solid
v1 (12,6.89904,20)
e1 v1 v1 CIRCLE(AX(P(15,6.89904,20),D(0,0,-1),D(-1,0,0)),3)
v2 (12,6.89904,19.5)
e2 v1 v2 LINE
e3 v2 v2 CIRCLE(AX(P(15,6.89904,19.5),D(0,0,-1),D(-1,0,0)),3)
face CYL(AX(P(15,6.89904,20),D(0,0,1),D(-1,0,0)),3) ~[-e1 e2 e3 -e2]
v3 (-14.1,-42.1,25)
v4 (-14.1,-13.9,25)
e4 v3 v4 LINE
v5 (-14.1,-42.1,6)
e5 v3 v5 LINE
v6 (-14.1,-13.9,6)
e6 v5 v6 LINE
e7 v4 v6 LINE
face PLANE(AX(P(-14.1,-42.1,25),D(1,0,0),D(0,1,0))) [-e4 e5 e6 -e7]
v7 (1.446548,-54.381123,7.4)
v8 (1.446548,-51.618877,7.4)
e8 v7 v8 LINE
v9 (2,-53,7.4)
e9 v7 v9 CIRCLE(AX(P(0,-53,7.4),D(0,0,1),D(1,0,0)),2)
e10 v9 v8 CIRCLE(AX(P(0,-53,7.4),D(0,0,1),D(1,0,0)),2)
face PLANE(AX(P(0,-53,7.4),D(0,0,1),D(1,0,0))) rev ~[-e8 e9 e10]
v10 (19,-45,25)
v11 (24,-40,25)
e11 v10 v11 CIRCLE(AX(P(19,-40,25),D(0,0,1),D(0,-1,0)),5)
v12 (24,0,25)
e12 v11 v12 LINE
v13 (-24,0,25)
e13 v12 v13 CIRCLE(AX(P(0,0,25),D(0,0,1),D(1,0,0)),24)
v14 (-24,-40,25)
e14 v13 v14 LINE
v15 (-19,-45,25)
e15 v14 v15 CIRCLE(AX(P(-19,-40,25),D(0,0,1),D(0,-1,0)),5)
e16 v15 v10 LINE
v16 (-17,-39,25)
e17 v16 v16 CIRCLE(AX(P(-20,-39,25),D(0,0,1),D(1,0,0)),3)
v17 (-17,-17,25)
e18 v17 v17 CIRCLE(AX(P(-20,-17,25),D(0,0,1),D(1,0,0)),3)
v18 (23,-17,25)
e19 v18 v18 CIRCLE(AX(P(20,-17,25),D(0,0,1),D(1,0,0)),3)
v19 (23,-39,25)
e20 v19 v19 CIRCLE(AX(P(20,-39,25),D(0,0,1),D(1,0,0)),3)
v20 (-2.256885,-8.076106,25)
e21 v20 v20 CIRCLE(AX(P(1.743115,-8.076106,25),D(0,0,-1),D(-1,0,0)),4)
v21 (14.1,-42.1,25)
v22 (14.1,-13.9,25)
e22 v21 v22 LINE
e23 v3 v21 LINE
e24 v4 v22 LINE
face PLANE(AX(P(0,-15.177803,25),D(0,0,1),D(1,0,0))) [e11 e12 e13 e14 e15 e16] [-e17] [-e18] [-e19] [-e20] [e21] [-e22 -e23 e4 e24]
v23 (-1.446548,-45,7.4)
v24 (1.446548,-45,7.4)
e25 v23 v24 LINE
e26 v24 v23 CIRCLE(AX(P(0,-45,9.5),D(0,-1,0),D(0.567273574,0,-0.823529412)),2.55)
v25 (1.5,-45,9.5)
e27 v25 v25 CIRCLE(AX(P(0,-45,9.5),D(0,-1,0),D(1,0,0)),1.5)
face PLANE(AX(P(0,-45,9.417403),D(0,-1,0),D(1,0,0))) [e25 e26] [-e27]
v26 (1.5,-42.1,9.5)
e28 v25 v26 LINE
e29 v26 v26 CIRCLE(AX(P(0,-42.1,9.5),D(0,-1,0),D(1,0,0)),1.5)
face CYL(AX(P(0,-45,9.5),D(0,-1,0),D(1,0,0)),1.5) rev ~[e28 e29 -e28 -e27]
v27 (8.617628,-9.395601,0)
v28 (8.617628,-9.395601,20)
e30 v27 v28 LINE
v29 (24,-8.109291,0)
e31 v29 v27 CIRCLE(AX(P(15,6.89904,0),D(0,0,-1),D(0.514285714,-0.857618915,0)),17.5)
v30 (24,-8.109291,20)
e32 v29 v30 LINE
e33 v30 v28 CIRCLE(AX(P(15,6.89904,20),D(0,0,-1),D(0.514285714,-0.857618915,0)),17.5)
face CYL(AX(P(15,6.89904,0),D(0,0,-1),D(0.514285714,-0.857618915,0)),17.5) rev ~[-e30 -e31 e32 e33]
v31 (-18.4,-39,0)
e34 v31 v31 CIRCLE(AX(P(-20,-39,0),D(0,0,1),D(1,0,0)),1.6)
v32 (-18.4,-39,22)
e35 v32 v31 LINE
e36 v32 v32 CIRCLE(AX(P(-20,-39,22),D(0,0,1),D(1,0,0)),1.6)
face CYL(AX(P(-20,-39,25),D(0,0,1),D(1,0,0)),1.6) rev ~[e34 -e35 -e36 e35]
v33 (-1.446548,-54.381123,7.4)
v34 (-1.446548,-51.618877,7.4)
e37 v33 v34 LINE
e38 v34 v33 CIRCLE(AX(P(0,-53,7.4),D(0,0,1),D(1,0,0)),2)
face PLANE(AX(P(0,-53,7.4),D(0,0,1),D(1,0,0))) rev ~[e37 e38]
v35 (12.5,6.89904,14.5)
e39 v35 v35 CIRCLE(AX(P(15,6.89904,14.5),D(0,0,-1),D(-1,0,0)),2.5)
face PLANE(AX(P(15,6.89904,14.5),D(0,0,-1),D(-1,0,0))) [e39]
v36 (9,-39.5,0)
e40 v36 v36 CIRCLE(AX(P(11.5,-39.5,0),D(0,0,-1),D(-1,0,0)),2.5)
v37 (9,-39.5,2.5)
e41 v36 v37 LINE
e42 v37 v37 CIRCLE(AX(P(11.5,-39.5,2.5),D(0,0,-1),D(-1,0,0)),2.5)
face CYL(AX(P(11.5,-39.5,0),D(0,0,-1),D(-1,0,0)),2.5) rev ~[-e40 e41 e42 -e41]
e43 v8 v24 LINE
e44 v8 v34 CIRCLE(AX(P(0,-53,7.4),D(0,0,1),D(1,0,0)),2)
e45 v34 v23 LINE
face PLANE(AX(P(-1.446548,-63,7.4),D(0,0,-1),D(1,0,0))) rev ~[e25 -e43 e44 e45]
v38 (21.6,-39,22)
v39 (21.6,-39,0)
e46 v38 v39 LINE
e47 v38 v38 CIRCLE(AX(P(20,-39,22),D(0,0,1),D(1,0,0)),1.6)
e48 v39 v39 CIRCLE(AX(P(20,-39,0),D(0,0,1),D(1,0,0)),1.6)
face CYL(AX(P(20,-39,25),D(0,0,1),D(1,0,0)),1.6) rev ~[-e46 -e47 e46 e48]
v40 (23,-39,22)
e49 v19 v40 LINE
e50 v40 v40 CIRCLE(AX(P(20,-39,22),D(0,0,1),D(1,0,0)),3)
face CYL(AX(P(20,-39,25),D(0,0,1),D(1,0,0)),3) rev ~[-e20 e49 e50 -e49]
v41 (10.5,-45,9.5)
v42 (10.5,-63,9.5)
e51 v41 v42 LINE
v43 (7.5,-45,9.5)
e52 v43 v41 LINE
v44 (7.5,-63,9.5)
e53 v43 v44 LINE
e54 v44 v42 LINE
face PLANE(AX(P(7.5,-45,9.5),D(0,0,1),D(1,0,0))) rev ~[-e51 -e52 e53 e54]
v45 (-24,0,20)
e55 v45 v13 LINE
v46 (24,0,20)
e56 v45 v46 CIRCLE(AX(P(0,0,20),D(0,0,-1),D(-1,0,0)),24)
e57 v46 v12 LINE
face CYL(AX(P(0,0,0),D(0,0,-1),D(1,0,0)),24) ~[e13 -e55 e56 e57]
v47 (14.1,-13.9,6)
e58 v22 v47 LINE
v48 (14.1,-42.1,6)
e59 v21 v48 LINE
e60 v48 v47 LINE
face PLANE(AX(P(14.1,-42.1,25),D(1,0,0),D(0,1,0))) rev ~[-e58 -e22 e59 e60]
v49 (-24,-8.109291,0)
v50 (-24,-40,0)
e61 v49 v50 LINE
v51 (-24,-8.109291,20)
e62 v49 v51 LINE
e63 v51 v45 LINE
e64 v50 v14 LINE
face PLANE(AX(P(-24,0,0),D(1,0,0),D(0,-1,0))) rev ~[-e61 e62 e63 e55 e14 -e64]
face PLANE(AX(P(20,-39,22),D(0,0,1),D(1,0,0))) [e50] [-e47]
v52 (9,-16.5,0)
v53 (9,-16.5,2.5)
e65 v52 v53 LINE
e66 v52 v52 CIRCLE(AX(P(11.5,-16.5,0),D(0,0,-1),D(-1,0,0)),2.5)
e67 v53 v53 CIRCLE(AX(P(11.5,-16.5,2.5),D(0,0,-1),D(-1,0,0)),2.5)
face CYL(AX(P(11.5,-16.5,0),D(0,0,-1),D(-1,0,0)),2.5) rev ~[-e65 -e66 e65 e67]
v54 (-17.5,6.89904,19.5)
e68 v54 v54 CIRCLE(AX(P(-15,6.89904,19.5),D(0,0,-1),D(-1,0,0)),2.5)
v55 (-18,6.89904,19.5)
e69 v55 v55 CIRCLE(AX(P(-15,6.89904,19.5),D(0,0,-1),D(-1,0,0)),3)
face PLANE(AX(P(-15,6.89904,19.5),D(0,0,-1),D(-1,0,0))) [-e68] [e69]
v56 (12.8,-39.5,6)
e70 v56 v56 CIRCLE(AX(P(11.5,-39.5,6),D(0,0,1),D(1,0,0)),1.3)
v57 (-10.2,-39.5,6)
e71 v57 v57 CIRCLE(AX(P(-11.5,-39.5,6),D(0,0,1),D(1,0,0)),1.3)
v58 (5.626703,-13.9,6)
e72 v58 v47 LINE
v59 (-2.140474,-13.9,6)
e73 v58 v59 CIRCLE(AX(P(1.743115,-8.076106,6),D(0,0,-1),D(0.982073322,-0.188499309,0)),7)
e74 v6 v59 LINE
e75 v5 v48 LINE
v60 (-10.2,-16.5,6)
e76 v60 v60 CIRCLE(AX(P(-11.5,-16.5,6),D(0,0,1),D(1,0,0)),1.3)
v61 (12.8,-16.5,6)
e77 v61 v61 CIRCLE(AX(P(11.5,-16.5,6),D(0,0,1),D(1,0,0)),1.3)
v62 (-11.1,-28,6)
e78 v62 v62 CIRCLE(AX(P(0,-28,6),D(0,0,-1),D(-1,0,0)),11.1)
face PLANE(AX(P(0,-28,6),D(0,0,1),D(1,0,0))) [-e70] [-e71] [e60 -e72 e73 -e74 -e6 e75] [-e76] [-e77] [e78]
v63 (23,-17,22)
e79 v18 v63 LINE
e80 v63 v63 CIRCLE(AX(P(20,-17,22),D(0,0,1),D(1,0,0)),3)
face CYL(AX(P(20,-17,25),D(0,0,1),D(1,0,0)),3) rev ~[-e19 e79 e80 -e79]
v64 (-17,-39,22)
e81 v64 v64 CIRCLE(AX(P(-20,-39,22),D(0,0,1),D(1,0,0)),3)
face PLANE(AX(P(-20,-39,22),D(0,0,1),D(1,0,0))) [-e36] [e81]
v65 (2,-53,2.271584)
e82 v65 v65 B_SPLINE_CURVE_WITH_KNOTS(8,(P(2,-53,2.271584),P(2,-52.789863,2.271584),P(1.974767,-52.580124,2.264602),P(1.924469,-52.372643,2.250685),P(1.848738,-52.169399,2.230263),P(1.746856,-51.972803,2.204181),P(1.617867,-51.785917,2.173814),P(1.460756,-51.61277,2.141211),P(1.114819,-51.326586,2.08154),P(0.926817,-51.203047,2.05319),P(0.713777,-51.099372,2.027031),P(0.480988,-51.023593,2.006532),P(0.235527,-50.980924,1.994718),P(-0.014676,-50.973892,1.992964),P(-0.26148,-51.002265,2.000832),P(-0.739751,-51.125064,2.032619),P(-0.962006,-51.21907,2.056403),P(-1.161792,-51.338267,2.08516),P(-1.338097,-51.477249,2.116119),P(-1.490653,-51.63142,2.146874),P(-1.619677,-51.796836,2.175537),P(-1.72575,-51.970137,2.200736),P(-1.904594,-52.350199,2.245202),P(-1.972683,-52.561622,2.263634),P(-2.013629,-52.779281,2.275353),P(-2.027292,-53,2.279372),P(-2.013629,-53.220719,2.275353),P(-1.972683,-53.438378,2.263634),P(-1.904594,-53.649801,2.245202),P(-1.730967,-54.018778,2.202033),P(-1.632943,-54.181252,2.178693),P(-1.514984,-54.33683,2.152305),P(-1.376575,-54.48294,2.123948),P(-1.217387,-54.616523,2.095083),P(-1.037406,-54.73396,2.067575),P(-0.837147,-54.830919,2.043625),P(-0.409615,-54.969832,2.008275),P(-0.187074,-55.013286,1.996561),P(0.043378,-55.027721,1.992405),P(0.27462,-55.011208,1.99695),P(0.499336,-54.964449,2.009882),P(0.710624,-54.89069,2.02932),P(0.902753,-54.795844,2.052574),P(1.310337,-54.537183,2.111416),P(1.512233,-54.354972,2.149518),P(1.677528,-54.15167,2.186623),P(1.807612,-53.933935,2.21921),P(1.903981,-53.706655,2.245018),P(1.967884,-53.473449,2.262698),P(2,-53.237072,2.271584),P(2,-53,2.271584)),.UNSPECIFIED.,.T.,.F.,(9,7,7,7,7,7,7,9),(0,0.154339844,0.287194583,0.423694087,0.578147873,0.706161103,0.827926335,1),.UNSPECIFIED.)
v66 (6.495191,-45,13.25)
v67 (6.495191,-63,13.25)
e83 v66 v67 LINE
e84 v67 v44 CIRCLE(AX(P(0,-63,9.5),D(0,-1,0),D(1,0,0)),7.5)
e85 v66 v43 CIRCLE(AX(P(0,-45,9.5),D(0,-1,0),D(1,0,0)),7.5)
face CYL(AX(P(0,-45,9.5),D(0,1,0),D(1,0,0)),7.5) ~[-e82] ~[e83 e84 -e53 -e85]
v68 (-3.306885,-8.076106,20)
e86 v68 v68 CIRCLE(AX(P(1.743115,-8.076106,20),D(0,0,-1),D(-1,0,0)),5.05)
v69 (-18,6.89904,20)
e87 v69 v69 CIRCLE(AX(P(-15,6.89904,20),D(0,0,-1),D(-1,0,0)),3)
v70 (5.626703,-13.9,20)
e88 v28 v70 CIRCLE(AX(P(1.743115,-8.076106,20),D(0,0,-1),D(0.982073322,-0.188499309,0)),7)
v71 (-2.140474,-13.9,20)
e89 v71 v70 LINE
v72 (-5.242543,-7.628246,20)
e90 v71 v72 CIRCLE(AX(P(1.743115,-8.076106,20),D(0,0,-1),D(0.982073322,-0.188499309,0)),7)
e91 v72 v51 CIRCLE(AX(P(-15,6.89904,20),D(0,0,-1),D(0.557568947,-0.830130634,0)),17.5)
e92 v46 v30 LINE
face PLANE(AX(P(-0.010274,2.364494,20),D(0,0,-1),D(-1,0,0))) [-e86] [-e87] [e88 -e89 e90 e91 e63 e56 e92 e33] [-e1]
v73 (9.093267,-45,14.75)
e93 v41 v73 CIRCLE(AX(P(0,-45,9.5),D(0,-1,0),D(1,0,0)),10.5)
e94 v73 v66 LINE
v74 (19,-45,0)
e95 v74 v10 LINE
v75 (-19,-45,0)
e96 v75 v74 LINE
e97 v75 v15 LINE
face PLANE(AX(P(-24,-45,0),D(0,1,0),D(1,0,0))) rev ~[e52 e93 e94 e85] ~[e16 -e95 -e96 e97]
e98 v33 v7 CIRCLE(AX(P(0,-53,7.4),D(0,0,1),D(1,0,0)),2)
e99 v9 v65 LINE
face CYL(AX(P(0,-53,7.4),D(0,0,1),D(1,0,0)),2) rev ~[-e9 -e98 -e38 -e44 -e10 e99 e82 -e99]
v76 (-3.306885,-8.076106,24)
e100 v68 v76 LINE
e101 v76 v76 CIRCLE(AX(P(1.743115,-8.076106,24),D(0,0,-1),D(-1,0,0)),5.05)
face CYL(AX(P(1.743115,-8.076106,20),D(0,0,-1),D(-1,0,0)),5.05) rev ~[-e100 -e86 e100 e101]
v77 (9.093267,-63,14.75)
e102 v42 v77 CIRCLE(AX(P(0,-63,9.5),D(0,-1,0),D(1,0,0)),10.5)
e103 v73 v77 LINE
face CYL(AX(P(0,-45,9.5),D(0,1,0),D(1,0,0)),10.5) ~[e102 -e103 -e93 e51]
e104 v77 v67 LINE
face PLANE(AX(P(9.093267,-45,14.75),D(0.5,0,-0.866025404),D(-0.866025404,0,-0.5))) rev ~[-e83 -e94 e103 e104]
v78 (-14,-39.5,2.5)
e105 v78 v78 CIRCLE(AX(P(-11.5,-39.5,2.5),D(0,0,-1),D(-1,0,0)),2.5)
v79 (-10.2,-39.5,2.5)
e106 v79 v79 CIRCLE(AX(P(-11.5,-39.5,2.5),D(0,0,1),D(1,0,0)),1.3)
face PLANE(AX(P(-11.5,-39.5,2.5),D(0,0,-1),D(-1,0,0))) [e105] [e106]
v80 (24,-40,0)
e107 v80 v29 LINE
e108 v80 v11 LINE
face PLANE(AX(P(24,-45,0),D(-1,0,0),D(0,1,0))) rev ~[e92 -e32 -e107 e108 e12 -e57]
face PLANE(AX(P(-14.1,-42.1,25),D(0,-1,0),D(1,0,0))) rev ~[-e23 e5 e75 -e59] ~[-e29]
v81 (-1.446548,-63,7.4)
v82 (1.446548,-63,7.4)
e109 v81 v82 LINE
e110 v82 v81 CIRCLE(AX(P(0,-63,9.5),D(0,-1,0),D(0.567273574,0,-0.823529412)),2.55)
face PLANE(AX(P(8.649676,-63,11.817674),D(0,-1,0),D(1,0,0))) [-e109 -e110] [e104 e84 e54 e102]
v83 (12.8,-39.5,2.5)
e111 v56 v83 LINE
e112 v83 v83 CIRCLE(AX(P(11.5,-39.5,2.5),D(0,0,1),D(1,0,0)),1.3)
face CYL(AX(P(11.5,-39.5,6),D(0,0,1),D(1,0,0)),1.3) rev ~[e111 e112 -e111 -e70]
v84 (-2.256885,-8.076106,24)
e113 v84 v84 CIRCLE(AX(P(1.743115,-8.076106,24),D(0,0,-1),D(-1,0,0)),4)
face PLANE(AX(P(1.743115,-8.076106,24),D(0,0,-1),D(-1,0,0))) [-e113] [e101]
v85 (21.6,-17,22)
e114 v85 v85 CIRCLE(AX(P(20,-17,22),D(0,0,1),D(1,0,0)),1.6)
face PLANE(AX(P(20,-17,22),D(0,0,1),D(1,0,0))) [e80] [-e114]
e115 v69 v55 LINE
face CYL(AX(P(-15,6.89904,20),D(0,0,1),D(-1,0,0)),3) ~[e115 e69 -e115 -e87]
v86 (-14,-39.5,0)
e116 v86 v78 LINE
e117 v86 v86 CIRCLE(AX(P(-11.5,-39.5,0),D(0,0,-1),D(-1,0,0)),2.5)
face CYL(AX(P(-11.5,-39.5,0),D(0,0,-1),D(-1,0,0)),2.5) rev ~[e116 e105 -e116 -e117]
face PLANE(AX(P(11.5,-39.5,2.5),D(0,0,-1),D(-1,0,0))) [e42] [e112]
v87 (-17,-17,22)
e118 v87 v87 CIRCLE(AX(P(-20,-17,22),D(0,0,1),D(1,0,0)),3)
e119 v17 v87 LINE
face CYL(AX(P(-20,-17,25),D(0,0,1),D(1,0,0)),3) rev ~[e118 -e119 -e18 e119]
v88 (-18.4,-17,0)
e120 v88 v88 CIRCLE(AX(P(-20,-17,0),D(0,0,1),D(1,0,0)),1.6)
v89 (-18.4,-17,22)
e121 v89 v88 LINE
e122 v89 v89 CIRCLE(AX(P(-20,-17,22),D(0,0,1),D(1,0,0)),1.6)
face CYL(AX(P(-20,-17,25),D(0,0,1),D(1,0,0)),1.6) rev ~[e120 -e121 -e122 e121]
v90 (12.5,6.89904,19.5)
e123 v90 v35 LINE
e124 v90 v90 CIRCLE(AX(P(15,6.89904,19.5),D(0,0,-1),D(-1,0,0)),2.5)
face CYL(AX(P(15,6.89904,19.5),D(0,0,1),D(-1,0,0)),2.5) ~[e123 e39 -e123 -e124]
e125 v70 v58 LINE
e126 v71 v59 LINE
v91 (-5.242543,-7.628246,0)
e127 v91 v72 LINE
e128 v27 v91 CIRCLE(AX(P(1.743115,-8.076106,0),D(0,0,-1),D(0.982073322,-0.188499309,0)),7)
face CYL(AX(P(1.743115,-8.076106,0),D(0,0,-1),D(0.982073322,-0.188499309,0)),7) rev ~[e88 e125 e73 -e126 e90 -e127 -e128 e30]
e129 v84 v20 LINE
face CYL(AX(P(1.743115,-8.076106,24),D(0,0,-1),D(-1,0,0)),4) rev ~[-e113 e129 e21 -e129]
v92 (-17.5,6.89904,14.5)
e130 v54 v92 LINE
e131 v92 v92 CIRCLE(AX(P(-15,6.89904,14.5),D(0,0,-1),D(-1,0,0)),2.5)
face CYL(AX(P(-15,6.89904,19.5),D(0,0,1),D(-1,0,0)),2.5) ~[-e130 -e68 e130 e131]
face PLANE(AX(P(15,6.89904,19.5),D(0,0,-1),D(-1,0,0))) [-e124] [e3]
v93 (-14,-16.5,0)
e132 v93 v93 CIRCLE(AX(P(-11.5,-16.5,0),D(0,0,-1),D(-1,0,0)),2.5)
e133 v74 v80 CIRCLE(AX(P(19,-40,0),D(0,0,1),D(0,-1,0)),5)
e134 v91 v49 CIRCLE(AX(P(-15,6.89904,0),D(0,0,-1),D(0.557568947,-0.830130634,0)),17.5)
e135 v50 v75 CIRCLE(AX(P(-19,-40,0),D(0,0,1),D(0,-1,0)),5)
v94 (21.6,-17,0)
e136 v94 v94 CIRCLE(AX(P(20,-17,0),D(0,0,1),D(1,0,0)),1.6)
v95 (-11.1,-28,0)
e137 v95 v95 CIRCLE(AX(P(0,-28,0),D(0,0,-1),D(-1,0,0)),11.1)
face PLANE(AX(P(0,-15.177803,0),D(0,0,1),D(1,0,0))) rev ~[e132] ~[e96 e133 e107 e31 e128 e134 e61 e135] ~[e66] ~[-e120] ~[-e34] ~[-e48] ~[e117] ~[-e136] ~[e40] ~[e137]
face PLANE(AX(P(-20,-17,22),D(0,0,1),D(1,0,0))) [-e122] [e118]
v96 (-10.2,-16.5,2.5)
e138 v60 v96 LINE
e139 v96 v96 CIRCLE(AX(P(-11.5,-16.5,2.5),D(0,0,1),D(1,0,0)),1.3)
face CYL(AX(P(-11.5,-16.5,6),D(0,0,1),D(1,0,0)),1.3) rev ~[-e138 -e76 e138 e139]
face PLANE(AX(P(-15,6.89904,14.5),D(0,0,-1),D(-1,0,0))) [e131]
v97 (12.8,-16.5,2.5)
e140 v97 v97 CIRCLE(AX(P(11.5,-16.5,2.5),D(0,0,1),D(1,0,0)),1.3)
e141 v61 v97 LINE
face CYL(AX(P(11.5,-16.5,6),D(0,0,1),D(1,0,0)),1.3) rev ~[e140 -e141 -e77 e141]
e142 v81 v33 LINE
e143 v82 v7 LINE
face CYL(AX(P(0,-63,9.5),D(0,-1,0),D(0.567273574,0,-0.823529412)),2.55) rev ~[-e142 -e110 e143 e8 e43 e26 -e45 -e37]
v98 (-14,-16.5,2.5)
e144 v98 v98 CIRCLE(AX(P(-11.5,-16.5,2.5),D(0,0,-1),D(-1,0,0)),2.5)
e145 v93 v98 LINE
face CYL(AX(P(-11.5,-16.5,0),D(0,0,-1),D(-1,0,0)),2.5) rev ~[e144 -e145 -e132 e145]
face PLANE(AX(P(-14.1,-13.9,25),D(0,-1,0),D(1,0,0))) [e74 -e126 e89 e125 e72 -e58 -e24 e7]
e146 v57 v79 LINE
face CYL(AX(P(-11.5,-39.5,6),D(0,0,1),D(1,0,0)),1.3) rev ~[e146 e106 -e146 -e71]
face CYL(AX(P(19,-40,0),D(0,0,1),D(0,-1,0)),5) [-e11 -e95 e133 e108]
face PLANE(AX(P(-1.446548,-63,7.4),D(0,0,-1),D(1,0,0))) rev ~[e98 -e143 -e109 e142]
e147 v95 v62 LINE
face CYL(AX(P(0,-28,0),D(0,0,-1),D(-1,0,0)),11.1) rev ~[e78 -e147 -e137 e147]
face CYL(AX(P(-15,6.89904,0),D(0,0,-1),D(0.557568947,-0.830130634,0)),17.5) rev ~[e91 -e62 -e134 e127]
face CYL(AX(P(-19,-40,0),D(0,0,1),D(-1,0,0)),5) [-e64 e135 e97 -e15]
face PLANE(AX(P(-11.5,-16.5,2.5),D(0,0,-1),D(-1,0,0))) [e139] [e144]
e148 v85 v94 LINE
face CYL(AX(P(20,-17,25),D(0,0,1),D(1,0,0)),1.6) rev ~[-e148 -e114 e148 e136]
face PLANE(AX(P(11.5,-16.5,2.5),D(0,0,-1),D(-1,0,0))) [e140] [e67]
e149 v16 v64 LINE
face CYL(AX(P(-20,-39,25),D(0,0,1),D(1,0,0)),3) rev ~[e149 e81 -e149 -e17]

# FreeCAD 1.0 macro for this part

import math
import FreeCAD as App
import Part
import Sketcher

V = App.Vector
Q = App.Units.Quantity


def edges_at(feature, points):
    """Names of the edges that pass closest to the given points."""
    edges = feature.Shape.Edges
    near = lambda p: min(range(len(edges)), key=lambda i: edges[i].distToShape(Part.Vertex(*p))[0])
    return sorted({f"Edge{near(p) + 1}" for p in points})

doc = App.newDocument("Part")
params = doc.addObject("Spreadsheet::Sheet", "Params")
for row, (alias, value) in enumerate([
    ("sketch1_radius", "24 mm"),
    ("sketch1_height", "45 mm"),
    ("pad1_length", "25 mm"),
    ("sketch2_width", "28.2 mm"),
    ("pocket1_length", "19 mm"),
    ("sketch3_diameter", "22.2 mm"),
    ("sketch4_radius", "7 mm"),
    ("sketch4_radius2", "24 mm"),
    ("sketch4_radius3", "17.5 mm"),
    ("pocket3_length", "20 mm"),
    ("sketch5_diameter", "6 mm"),
    ("pad2_length", "0.5 mm"),
    ("sketch6_diameter", "5 mm"),
    ("pad3_length", "5 mm"),
    ("sketch7_diameter", "10.1 mm"),
    ("pocket4_length", "4 mm"),
    ("sketch8_diameter", "8 mm"),
    ("sketch9_diameter", "3.2 mm"),
    ("sketch10_diameter", "6 mm"),
    ("pocket7_length", "3 mm"),
    ("sketch11_diameter", "2.6 mm"),
    ("sketch12_diameter", "5 mm"),
    ("pocket9_length", "2.5 mm"),
    ("fillet_radius", "5 mm"),
    ("sketch13_diameter", "15 mm"),
    ("pad4_length", "18 mm"),
    ("sketch14_radius", "2.55 mm"),
    ("pocket10_length", "18 mm"),
    ("sketch15_diameter", "3 mm"),
    ("pocket11_length", "10 mm"),
    ("sketch16_radius", "10.5 mm"),
    ("sketch16_radius2", "7.5 mm"),
    ("pad5_length", "18 mm"),
    ("sketch17_diameter", "4 mm"),
], start=1):
    params.set(f"A{row}", alias)
    params.set(f"B{row}", "=" + value)
    params.setAlias(f"B{row}", alias)

body = doc.addObject("PartDesign::Body", "Body")

sketch1 = body.newObject("Sketcher::SketchObject", "Sketch")
sketch1.AttachmentSupport = (doc.getObject("XY_Plane"), [""])
sketch1.MapMode = "FlatFace"
sketch1.addGeometry(Part.LineSegment(V(-24, 0, 0), V(-24, -45, 0)), False)
sketch1.addGeometry(Part.LineSegment(V(-24, -45, 0), V(24, -45, 0)), False)
sketch1.addGeometry(Part.LineSegment(V(24, -45, 0), V(24, 0, 0)), False)
sketch1.addGeometry(Part.ArcOfCircle(Part.Circle(V(0, 0, 0), V(0, 0, 1), 24), math.radians(0), math.radians(180)), False)
sketch1.addConstraint(Sketcher.Constraint("Coincident", 0, 2, 1, 1))
sketch1.addConstraint(Sketcher.Constraint("Coincident", 1, 2, 2, 1))
sketch1.addConstraint(Sketcher.Constraint("Tangent", 2, 2, 3, 1))
sketch1.addConstraint(Sketcher.Constraint("Tangent", 3, 2, 0, 1))
sketch1.addConstraint(Sketcher.Constraint("Vertical", 0))
sketch1.addConstraint(Sketcher.Constraint("Horizontal", 1))
sketch1.addConstraint(Sketcher.Constraint("Vertical", 2))
sketch1.addConstraint(Sketcher.Constraint("Coincident", 3, 3, -1, 1))
sketch1.addConstraint(Sketcher.Constraint("Radius", 3, Q("24 mm")))
sketch1.addConstraint(Sketcher.Constraint("DistanceY", 0, 2, 0, 1, Q("45 mm")))
sketch1.setExpression("Constraints[8]", "Params.sketch1_radius")
sketch1.setExpression("Constraints[9]", "Params.sketch1_height")
pad1 = body.newObject("PartDesign::Pad", "Pad")
pad1.Profile = sketch1
pad1.setExpression("Length", "Params.pad1_length")

sketch2 = body.newObject("Sketcher::SketchObject", "Sketch001")
sketch2.AttachmentSupport = (doc.getObject("XY_Plane"), [""])
sketch2.MapMode = "FlatFace"
sketch2.AttachmentOffset = App.Placement(V(0, 0, 25), App.Rotation())
sketch2.addGeometry(Part.LineSegment(V(-14, -14, 0), V(-14, -42, 0)), False)
sketch2.addGeometry(Part.LineSegment(V(-14, -42, 0), V(14, -42, 0)), False)
sketch2.addGeometry(Part.LineSegment(V(14, -42, 0), V(14, -14, 0)), False)
sketch2.addGeometry(Part.LineSegment(V(14, -14, 0), V(-14, -14, 0)), False)
sketch2.addConstraint(Sketcher.Constraint("Coincident", 0, 2, 1, 1))
sketch2.addConstraint(Sketcher.Constraint("Coincident", 1, 2, 2, 1))
sketch2.addConstraint(Sketcher.Constraint("Coincident", 2, 2, 3, 1))
sketch2.addConstraint(Sketcher.Constraint("Coincident", 3, 2, 0, 1))
sketch2.addConstraint(Sketcher.Constraint("Vertical", 0))
sketch2.addConstraint(Sketcher.Constraint("Horizontal", 1))
sketch2.addConstraint(Sketcher.Constraint("Vertical", 2))
sketch2.addConstraint(Sketcher.Constraint("Horizontal", 3))
sketch2.addConstraint(Sketcher.Constraint("Equal", 3, 0))
sketch2.addConstraint(Sketcher.Constraint("DistanceX", 1, 1, 1, 2, Q("28.2 mm")))
sketch2.addConstraint(Sketcher.Constraint("DistanceX", 0, 2, -1, 1, Q("14.1 mm")))
sketch2.addConstraint(Sketcher.Constraint("DistanceY", 0, 2, -1, 1, Q("42.1 mm")))
sketch2.setExpression("Constraints[9]", "Params.sketch2_width")
pocket1 = body.newObject("PartDesign::Pocket", "Pocket")
pocket1.Profile = sketch2
pocket1.setExpression("Length", "Params.pocket1_length")

sketch3 = body.newObject("Sketcher::SketchObject", "Sketch002")
sketch3.AttachmentSupport = (doc.getObject("XY_Plane"), [""])
sketch3.MapMode = "FlatFace"
sketch3.addGeometry(Part.Circle(V(0, -28, 0), V(0, 0, 1), 11), False)
sketch3.addConstraint(Sketcher.Constraint("PointOnObject", 0, 3, -2))
sketch3.addConstraint(Sketcher.Constraint("Diameter", 0, Q("22.2 mm")))
sketch3.addConstraint(Sketcher.Constraint("DistanceY", 0, 3, -1, 1, Q("28 mm")))
sketch3.setExpression("Constraints[1]", "Params.sketch3_diameter")
pocket2 = body.newObject("PartDesign::Pocket", "Pocket001")
pocket2.Profile = sketch3
pocket2.Type = "ThroughAll"
pocket2.Reversed = True

sketch4 = body.newObject("Sketcher::SketchObject", "Sketch003")
sketch4.AttachmentSupport = (doc.getObject("XY_Plane"), [""])
sketch4.MapMode = "FlatFace"
sketch4.addGeometry(Part.LineSegment(V(24, 0, 0), V(24, -8, 0)), False)
sketch4.addGeometry(Part.ArcOfCircle(Part.Circle(V(15, 7, 0), V(0, 0, 1), 18), math.radians(-111), math.radians(-59)), False)
sketch4.addGeometry(Part.ArcOfCircle(Part.Circle(V(2, -8, 0), V(0, 0, 1), 7), math.radians(176), math.radians(349)), False)
sketch4.addGeometry(Part.ArcOfCircle(Part.Circle(V(-15, 7, 0), V(0, 0, 1), 18), math.radians(-121), math.radians(-56)), False)
sketch4.addGeometry(Part.LineSegment(V(-24, -8, 0), V(-24, 0, 0)), False)
sketch4.addGeometry(Part.ArcOfCircle(Part.Circle(V(0, 0, 0), V(0, 0, 1), 24), math.radians(0), math.radians(180)), False)
sketch4.addConstraint(Sketcher.Constraint("Coincident", 0, 2, 1, 2))
sketch4.addConstraint(Sketcher.Constraint("Coincident", 1, 1, 2, 2))
sketch4.addConstraint(Sketcher.Constraint("Coincident", 2, 1, 3, 2))
sketch4.addConstraint(Sketcher.Constraint("Coincident", 3, 1, 4, 1))
sketch4.addConstraint(Sketcher.Constraint("Tangent", 4, 2, 5, 2))
sketch4.addConstraint(Sketcher.Constraint("Tangent", 5, 1, 0, 1))
sketch4.addConstraint(Sketcher.Constraint("Vertical", 0))
sketch4.addConstraint(Sketcher.Constraint("Vertical", 4))
sketch4.addConstraint(Sketcher.Constraint("Coincident", 5, 3, -1, 1))
sketch4.addConstraint(Sketcher.Constraint("Equal", 1, 3))
sketch4.addConstraint(Sketcher.Constraint("Symmetric", 1, 3, 3, 3, -2))
sketch4.addConstraint(Sketcher.Constraint("Radius", 2, Q("7 mm")))
sketch4.addConstraint(Sketcher.Constraint("Radius", 5, Q("24 mm")))
sketch4.addConstraint(Sketcher.Constraint("Radius", 1, Q("17.5 mm")))
sketch4.addConstraint(Sketcher.Constraint("DistanceX", -1, 1, 1, 3, Q("15 mm")))
sketch4.addConstraint(Sketcher.Constraint("DistanceY", 0, 2, 0, 1, Q("8.109291 mm")))
sketch4.addConstraint(Sketcher.Constraint("DistanceY", 1, 1, -1, 1, Q("9.395601 mm")))
sketch4.addConstraint(Sketcher.Constraint("DistanceX", 2, 1, 2, 3, Q("6.985658 mm")))
sketch4.setExpression("Constraints[11]", "Params.sketch4_radius")
sketch4.setExpression("Constraints[12]", "Params.sketch4_radius2")
sketch4.setExpression("Constraints[13]", "Params.sketch4_radius3")
pocket3 = body.newObject("PartDesign::Pocket", "Pocket002")
pocket3.Profile = sketch4
pocket3.setExpression("Length", "Params.pocket3_length")
pocket3.Reversed = True

sketch5 = body.newObject("Sketcher::SketchObject", "Sketch004")
sketch5.AttachmentSupport = (doc.getObject("XY_Plane"), [""])
sketch5.MapMode = "FlatFace"
sketch5.AttachmentOffset = App.Placement(V(0, 0, 20), App.Rotation())
sketch5.addGeometry(Part.Circle(V(15, 6.9, 0), V(0, 0, 1), 3), False)
sketch5.addGeometry(Part.Circle(V(-15, 6.9, 0), V(0, 0, 1), 3), False)
sketch5.addConstraint(Sketcher.Constraint("Equal", 0, 1))
sketch5.addConstraint(Sketcher.Constraint("Symmetric", 0, 3, 1, 3, -2))
sketch5.addConstraint(Sketcher.Constraint("Diameter", 0, Q("6 mm")))
sketch5.addConstraint(Sketcher.Constraint("DistanceX", -1, 1, 0, 3, Q("15 mm")))
sketch5.addConstraint(Sketcher.Constraint("DistanceY", -1, 1, 0, 3, Q("6.89904 mm")))
sketch5.setExpression("Constraints[2]", "Params.sketch5_diameter")
pad2 = body.newObject("PartDesign::Pad", "Pad001")
pad2.Profile = sketch5
pad2.setExpression("Length", "Params.pad2_length")
pad2.Reversed = True

sketch6 = body.newObject("Sketcher::SketchObject", "Sketch005")
sketch6.AttachmentSupport = (doc.getObject("XY_Plane"), [""])
sketch6.MapMode = "FlatFace"
sketch6.AttachmentOffset = App.Placement(V(0, 0, 19.5), App.Rotation())
sketch6.addGeometry(Part.Circle(V(15, 6.9, 0), V(0, 0, 1), 2.5), False)
sketch6.addGeometry(Part.Circle(V(-15, 6.9, 0), V(0, 0, 1), 2.5), False)
sketch6.addConstraint(Sketcher.Constraint("Equal", 0, 1))
sketch6.addConstraint(Sketcher.Constraint("Symmetric", 0, 3, 1, 3, -2))
sketch6.addConstraint(Sketcher.Constraint("Diameter", 0, Q("5 mm")))
sketch6.addConstraint(Sketcher.Constraint("DistanceX", -1, 1, 0, 3, Q("15 mm")))
sketch6.addConstraint(Sketcher.Constraint("DistanceY", -1, 1, 0, 3, Q("6.89904 mm")))
sketch6.setExpression("Constraints[2]", "Params.sketch6_diameter")
pad3 = body.newObject("PartDesign::Pad", "Pad002")
pad3.Profile = sketch6
pad3.setExpression("Length", "Params.pad3_length")
pad3.Reversed = True

sketch7 = body.newObject("Sketcher::SketchObject", "Sketch006")
sketch7.AttachmentSupport = (doc.getObject("XY_Plane"), [""])
sketch7.MapMode = "FlatFace"
sketch7.AttachmentOffset = App.Placement(V(0, 0, 20), App.Rotation())
sketch7.addGeometry(Part.Circle(V(2, -8, 0), V(0, 0, 1), 5), False)
sketch7.addConstraint(Sketcher.Constraint("Diameter", 0, Q("10.1 mm")))
sketch7.addConstraint(Sketcher.Constraint("DistanceX", -1, 1, 0, 3, Q("1.743115 mm")))
sketch7.addConstraint(Sketcher.Constraint("DistanceY", 0, 3, -1, 1, Q("8.076106 mm")))
sketch7.setExpression("Constraints[0]", "Params.sketch7_diameter")
pocket4 = body.newObject("PartDesign::Pocket", "Pocket003")
pocket4.Profile = sketch7
pocket4.setExpression("Length", "Params.pocket4_length")
pocket4.Reversed = True

sketch8 = body.newObject("Sketcher::SketchObject", "Sketch007")
sketch8.AttachmentSupport = (doc.getObject("XY_Plane"), [""])
sketch8.MapMode = "FlatFace"
sketch8.AttachmentOffset = App.Placement(V(0, 0, 24), App.Rotation())
sketch8.addGeometry(Part.Circle(V(1.7, -8.1, 0), V(0, 0, 1), 4), False)
sketch8.addConstraint(Sketcher.Constraint("Diameter", 0, Q("8 mm")))
sketch8.addConstraint(Sketcher.Constraint("DistanceX", -1, 1, 0, 3, Q("1.743115 mm")))
sketch8.addConstraint(Sketcher.Constraint("DistanceY", 0, 3, -1, 1, Q("8.076106 mm")))
sketch8.setExpression("Constraints[0]", "Params.sketch8_diameter")
pocket5 = body.newObject("PartDesign::Pocket", "Pocket004")
pocket5.Profile = sketch8
pocket5.Type = "ThroughAll"
pocket5.Reversed = True

sketch9 = body.newObject("Sketcher::SketchObject", "Sketch008")
sketch9.AttachmentSupport = (doc.getObject("XY_Plane"), [""])
sketch9.MapMode = "FlatFace"
sketch9.AttachmentOffset = App.Placement(V(0, 0, 25), App.Rotation())
sketch9.addGeometry(Part.Circle(V(-20, -39, 0), V(0, 0, 1), 1.6), False)
sketch9.addGeometry(Part.Circle(V(-20, -17, 0), V(0, 0, 1), 1.6), False)
sketch9.addGeometry(Part.Circle(V(20, -39, 0), V(0, 0, 1), 1.6), False)
sketch9.addGeometry(Part.Circle(V(20, -17, 0), V(0, 0, 1), 1.6), False)
sketch9.addConstraint(Sketcher.Constraint("Equal", 0, 1))
sketch9.addConstraint(Sketcher.Constraint("Equal", 1, 2))
sketch9.addConstraint(Sketcher.Constraint("Equal", 2, 3))
sketch9.addConstraint(Sketcher.Constraint("Symmetric", 0, 3, 2, 3, -2))
sketch9.addConstraint(Sketcher.Constraint("Symmetric", 1, 3, 3, 3, -2))
sketch9.addConstraint(Sketcher.Constraint("Vertical", 0, 3, 1, 3))
sketch9.addConstraint(Sketcher.Constraint("Diameter", 0, Q("3.2 mm")))
sketch9.addConstraint(Sketcher.Constraint("DistanceX", 0, 3, -1, 1, Q("20 mm")))
sketch9.addConstraint(Sketcher.Constraint("DistanceY", 0, 3, -1, 1, Q("39 mm")))
sketch9.addConstraint(Sketcher.Constraint("DistanceY", 1, 3, -1, 1, Q("17 mm")))
sketch9.setExpression("Constraints[6]", "Params.sketch9_diameter")
pocket6 = body.newObject("PartDesign::Pocket", "Pocket005")
pocket6.Profile = sketch9
pocket6.Type = "ThroughAll"

sketch10 = body.newObject("Sketcher::SketchObject", "Sketch009")
sketch10.AttachmentSupport = (doc.getObject("XY_Plane"), [""])
sketch10.MapMode = "FlatFace"
sketch10.AttachmentOffset = App.Placement(V(0, 0, 25), App.Rotation())
sketch10.addGeometry(Part.Circle(V(-20, -17, 0), V(0, 0, 1), 3), False)
sketch10.addGeometry(Part.Circle(V(-20, -39, 0), V(0, 0, 1), 3), False)
sketch10.addGeometry(Part.Circle(V(20, -17, 0), V(0, 0, 1), 3), False)
sketch10.addGeometry(Part.Circle(V(20, -39, 0), V(0, 0, 1), 3), False)
sketch10.addConstraint(Sketcher.Constraint("Equal", 0, 1))
sketch10.addConstraint(Sketcher.Constraint("Equal", 1, 2))
sketch10.addConstraint(Sketcher.Constraint("Equal", 2, 3))
sketch10.addConstraint(Sketcher.Constraint("Symmetric", 0, 3, 2, 3, -2))
sketch10.addConstraint(Sketcher.Constraint("Symmetric", 1, 3, 3, 3, -2))
sketch10.addConstraint(Sketcher.Constraint("Vertical", 0, 3, 1, 3))
sketch10.addConstraint(Sketcher.Constraint("Diameter", 0, Q("6 mm")))
sketch10.addConstraint(Sketcher.Constraint("DistanceX", 0, 3, -1, 1, Q("20 mm")))
sketch10.addConstraint(Sketcher.Constraint("DistanceY", 0, 3, -1, 1, Q("17 mm")))
sketch10.addConstraint(Sketcher.Constraint("DistanceY", 1, 3, -1, 1, Q("39 mm")))
sketch10.setExpression("Constraints[6]", "Params.sketch10_diameter")
pocket7 = body.newObject("PartDesign::Pocket", "Pocket006")
pocket7.Profile = sketch10
pocket7.setExpression("Length", "Params.pocket7_length")

sketch11 = body.newObject("Sketcher::SketchObject", "Sketch010")
sketch11.AttachmentSupport = (doc.getObject("XY_Plane"), [""])
sketch11.MapMode = "FlatFace"
sketch11.AttachmentOffset = App.Placement(V(0, 0, 6), App.Rotation())
sketch11.addGeometry(Part.Circle(V(-11.5, -16.5, 0), V(0, 0, 1), 1.3), False)
sketch11.addGeometry(Part.Circle(V(11.5, -16.5, 0), V(0, 0, 1), 1.3), False)
sketch11.addGeometry(Part.Circle(V(11.5, -39.5, 0), V(0, 0, 1), 1.3), False)
sketch11.addGeometry(Part.Circle(V(-11.5, -39.5, 0), V(0, 0, 1), 1.3), False)
sketch11.addConstraint(Sketcher.Constraint("Equal", 0, 1))
sketch11.addConstraint(Sketcher.Constraint("Equal", 1, 2))
sketch11.addConstraint(Sketcher.Constraint("Equal", 2, 3))
sketch11.addConstraint(Sketcher.Constraint("Symmetric", 0, 3, 1, 3, -2))
sketch11.addConstraint(Sketcher.Constraint("Symmetric", 2, 3, 3, 3, -2))
sketch11.addConstraint(Sketcher.Constraint("Vertical", 1, 3, 2, 3))
sketch11.addConstraint(Sketcher.Constraint("Diameter", 0, Q("2.6 mm")))
sketch11.addConstraint(Sketcher.Constraint("DistanceX", 0, 3, 1, 3, Q("23 mm")))
sketch11.addConstraint(Sketcher.Constraint("DistanceY", 2, 3, 1, 3, Q("23 mm")))
sketch11.addConstraint(Sketcher.Constraint("DistanceY", 0, 3, -1, 1, Q("16.5 mm")))
sketch11.setExpression("Constraints[6]", "Params.sketch11_diameter")
pocket8 = body.newObject("PartDesign::Pocket", "Pocket007")
pocket8.Profile = sketch11
pocket8.Type = "ThroughAll"

sketch12 = body.newObject("Sketcher::SketchObject", "Sketch011")
sketch12.AttachmentSupport = (doc.getObject("XY_Plane"), [""])
sketch12.MapMode = "FlatFace"
sketch12.addGeometry(Part.Circle(V(11.5, -16.5, 0), V(0, 0, 1), 2.5), False)
sketch12.addGeometry(Part.Circle(V(-11.5, -16.5, 0), V(0, 0, 1), 2.5), False)
sketch12.addGeometry(Part.Circle(V(11.5, -39.5, 0), V(0, 0, 1), 2.5), False)
sketch12.addGeometry(Part.Circle(V(-11.5, -39.5, 0), V(0, 0, 1), 2.5), False)
sketch12.addConstraint(Sketcher.Constraint("Equal", 0, 1))
sketch12.addConstraint(Sketcher.Constraint("Equal", 1, 2))
sketch12.addConstraint(Sketcher.Constraint("Equal", 2, 3))
sketch12.addConstraint(Sketcher.Constraint("Symmetric", 0, 3, 1, 3, -2))
sketch12.addConstraint(Sketcher.Constraint("Symmetric", 2, 3, 3, 3, -2))
sketch12.addConstraint(Sketcher.Constraint("Vertical", 0, 3, 2, 3))
sketch12.addConstraint(Sketcher.Constraint("Diameter", 0, Q("5 mm")))
sketch12.addConstraint(Sketcher.Constraint("DistanceX", 1, 3, 0, 3, Q("23 mm")))
sketch12.addConstraint(Sketcher.Constraint("DistanceY", 2, 3, 0, 3, Q("23 mm")))
sketch12.addConstraint(Sketcher.Constraint("DistanceY", 0, 3, -1, 1, Q("16.5 mm")))
sketch12.setExpression("Constraints[6]", "Params.sketch12_diameter")
pocket9 = body.newObject("PartDesign::Pocket", "Pocket008")
pocket9.Profile = sketch12
pocket9.setExpression("Length", "Params.pocket9_length")
pocket9.Reversed = True
doc.recompute()

fillet = body.newObject("PartDesign::Fillet", "Fillet")
fillet.Base = (pocket9, edges_at(pocket9, [(24, -45, 12.5), (-24, -45, 12.5)]))
fillet.setExpression("Radius", "Params.fillet_radius")

sketch13 = body.newObject("Sketcher::SketchObject", "Sketch012")
sketch13.AttachmentSupport = (doc.getObject("XZ_Plane"), [""])
sketch13.MapMode = "FlatFace"
sketch13.AttachmentOffset = App.Placement(V(0, 0, 45), App.Rotation())
sketch13.addGeometry(Part.Circle(V(0, 10, 0), V(0, 0, 1), 8), False)
sketch13.addConstraint(Sketcher.Constraint("PointOnObject", 0, 3, -2))
sketch13.addConstraint(Sketcher.Constraint("Diameter", 0, Q("15 mm")))
sketch13.addConstraint(Sketcher.Constraint("DistanceY", -1, 1, 0, 3, Q("9.5 mm")))
sketch13.setExpression("Constraints[1]", "Params.sketch13_diameter")
pad4 = body.newObject("PartDesign::Pad", "Pad003")
pad4.Profile = sketch13
pad4.setExpression("Length", "Params.pad4_length")

sketch14 = body.newObject("Sketcher::SketchObject", "Sketch013")
sketch14.AttachmentSupport = (doc.getObject("XZ_Plane"), [""])
sketch14.MapMode = "FlatFace"
sketch14.AttachmentOffset = App.Placement(V(0, 0, 63), App.Rotation())
sketch14.addGeometry(Part.LineSegment(V(-1.4, 7.4, 0), V(1.4, 7.4, 0)), False)
sketch14.addGeometry(Part.ArcOfCircle(Part.Circle(V(0, 9.5, 0), V(0, 0, 1), 2.5), math.radians(-55), math.radians(235)), False)
sketch14.addConstraint(Sketcher.Constraint("Coincident", 0, 1, 1, 2))
sketch14.addConstraint(Sketcher.Constraint("Coincident", 1, 1, 0, 2))
sketch14.addConstraint(Sketcher.Constraint("Horizontal", 0))
sketch14.addConstraint(Sketcher.Constraint("PointOnObject", 1, 3, -2))
sketch14.addConstraint(Sketcher.Constraint("Radius", 1, Q("2.55 mm")))
sketch14.addConstraint(Sketcher.Constraint("DistanceY", -1, 1, 1, 3, Q("9.5 mm")))
sketch14.addConstraint(Sketcher.Constraint("DistanceY", -1, 1, 0, 1, Q("7.4 mm")))
sketch14.setExpression("Constraints[4]", "Params.sketch14_radius")
pocket10 = body.newObject("PartDesign::Pocket", "Pocket009")
pocket10.Profile = sketch14
pocket10.setExpression("Length", "Params.pocket10_length")

sketch15 = body.newObject("Sketcher::SketchObject", "Sketch014")
sketch15.AttachmentSupport = (doc.getObject("XZ_Plane"), [""])
sketch15.MapMode = "FlatFace"
sketch15.AttachmentOffset = App.Placement(V(0, 0, 45), App.Rotation())
sketch15.addGeometry(Part.Circle(V(0, 9.5, 0), V(0, 0, 1), 1.5), False)
sketch15.addConstraint(Sketcher.Constraint("PointOnObject", 0, 3, -2))
sketch15.addConstraint(Sketcher.Constraint("Diameter", 0, Q("3 mm")))
sketch15.addConstraint(Sketcher.Constraint("DistanceY", -1, 1, 0, 3, Q("9.5 mm")))
sketch15.setExpression("Constraints[1]", "Params.sketch15_diameter")
pocket11 = body.newObject("PartDesign::Pocket", "Pocket010")
pocket11.Profile = sketch15
pocket11.setExpression("Length", "Params.pocket11_length")

sketch16 = body.newObject("Sketcher::SketchObject", "Sketch015")
sketch16.AttachmentSupport = (doc.getObject("XZ_Plane"), [""])
sketch16.MapMode = "FlatFace"
sketch16.AttachmentOffset = App.Placement(V(0, 0, 45), App.Rotation())
sketch16.addGeometry(Part.LineSegment(V(7.5, 9.5, 0), V(10.5, 9.5, 0)), False)
sketch16.addGeometry(Part.ArcOfCircle(Part.Circle(V(0, 9.5, 0), V(0, 0, 1), 10.5), math.radians(0), math.radians(30)), False)
sketch16.addGeometry(Part.LineSegment(V(9.1, 14.8, 0), V(6.5, 13.2, 0)), False)
sketch16.addGeometry(Part.ArcOfCircle(Part.Circle(V(0, 9.5, 0), V(0, 0, 1), 7.5), math.radians(0), math.radians(30)), False)
sketch16.addConstraint(Sketcher.Constraint("Coincident", 0, 2, 1, 1))
sketch16.addConstraint(Sketcher.Constraint("Coincident", 1, 2, 2, 1))
sketch16.addConstraint(Sketcher.Constraint("Coincident", 2, 2, 3, 2))
sketch16.addConstraint(Sketcher.Constraint("Coincident", 3, 1, 0, 1))
sketch16.addConstraint(Sketcher.Constraint("Horizontal", 0))
sketch16.addConstraint(Sketcher.Constraint("Coincident", 3, 3, 1, 3))
sketch16.addConstraint(Sketcher.Constraint("PointOnObject", 1, 3, -2))
sketch16.addConstraint(Sketcher.Constraint("Horizontal", 3, 3, 0, 2))
sketch16.addConstraint(Sketcher.Constraint("Radius", 1, Q("10.5 mm")))
sketch16.addConstraint(Sketcher.Constraint("Radius", 3, Q("7.5 mm")))
sketch16.addConstraint(Sketcher.Constraint("Angle", 2, Q("-150 deg")))
sketch16.addConstraint(Sketcher.Constraint("DistanceY", -1, 1, 1, 3, Q("9.5 mm")))
sketch16.addConstraint(Sketcher.Constraint("DistanceY", -1, 1, 1, 2, Q("14.75 mm")))
sketch16.setExpression("Constraints[8]", "Params.sketch16_radius")
sketch16.setExpression("Constraints[9]", "Params.sketch16_radius2")
pad5 = body.newObject("PartDesign::Pad", "Pad004")
pad5.Profile = sketch16
pad5.setExpression("Length", "Params.pad5_length")

sketch17 = body.newObject("Sketcher::SketchObject", "Sketch016")
sketch17.AttachmentSupport = (doc.getObject("XY_Plane"), [""])
sketch17.MapMode = "FlatFace"
sketch17.AttachmentOffset = App.Placement(V(0, 0, 7.4), App.Rotation())
sketch17.addGeometry(Part.Circle(V(0, -53, 0), V(0, 0, 1), 2), False)
sketch17.addConstraint(Sketcher.Constraint("PointOnObject", 0, 3, -2))
sketch17.addConstraint(Sketcher.Constraint("Diameter", 0, Q("4 mm")))
sketch17.addConstraint(Sketcher.Constraint("DistanceY", 0, 3, -1, 1, Q("53 mm")))
sketch17.setExpression("Constraints[1]", "Params.sketch17_diameter")
pocket12 = body.newObject("PartDesign::Pocket", "Pocket011")
pocket12.Profile = sketch17
pocket12.Type = "ThroughAll"

doc.recompute()
